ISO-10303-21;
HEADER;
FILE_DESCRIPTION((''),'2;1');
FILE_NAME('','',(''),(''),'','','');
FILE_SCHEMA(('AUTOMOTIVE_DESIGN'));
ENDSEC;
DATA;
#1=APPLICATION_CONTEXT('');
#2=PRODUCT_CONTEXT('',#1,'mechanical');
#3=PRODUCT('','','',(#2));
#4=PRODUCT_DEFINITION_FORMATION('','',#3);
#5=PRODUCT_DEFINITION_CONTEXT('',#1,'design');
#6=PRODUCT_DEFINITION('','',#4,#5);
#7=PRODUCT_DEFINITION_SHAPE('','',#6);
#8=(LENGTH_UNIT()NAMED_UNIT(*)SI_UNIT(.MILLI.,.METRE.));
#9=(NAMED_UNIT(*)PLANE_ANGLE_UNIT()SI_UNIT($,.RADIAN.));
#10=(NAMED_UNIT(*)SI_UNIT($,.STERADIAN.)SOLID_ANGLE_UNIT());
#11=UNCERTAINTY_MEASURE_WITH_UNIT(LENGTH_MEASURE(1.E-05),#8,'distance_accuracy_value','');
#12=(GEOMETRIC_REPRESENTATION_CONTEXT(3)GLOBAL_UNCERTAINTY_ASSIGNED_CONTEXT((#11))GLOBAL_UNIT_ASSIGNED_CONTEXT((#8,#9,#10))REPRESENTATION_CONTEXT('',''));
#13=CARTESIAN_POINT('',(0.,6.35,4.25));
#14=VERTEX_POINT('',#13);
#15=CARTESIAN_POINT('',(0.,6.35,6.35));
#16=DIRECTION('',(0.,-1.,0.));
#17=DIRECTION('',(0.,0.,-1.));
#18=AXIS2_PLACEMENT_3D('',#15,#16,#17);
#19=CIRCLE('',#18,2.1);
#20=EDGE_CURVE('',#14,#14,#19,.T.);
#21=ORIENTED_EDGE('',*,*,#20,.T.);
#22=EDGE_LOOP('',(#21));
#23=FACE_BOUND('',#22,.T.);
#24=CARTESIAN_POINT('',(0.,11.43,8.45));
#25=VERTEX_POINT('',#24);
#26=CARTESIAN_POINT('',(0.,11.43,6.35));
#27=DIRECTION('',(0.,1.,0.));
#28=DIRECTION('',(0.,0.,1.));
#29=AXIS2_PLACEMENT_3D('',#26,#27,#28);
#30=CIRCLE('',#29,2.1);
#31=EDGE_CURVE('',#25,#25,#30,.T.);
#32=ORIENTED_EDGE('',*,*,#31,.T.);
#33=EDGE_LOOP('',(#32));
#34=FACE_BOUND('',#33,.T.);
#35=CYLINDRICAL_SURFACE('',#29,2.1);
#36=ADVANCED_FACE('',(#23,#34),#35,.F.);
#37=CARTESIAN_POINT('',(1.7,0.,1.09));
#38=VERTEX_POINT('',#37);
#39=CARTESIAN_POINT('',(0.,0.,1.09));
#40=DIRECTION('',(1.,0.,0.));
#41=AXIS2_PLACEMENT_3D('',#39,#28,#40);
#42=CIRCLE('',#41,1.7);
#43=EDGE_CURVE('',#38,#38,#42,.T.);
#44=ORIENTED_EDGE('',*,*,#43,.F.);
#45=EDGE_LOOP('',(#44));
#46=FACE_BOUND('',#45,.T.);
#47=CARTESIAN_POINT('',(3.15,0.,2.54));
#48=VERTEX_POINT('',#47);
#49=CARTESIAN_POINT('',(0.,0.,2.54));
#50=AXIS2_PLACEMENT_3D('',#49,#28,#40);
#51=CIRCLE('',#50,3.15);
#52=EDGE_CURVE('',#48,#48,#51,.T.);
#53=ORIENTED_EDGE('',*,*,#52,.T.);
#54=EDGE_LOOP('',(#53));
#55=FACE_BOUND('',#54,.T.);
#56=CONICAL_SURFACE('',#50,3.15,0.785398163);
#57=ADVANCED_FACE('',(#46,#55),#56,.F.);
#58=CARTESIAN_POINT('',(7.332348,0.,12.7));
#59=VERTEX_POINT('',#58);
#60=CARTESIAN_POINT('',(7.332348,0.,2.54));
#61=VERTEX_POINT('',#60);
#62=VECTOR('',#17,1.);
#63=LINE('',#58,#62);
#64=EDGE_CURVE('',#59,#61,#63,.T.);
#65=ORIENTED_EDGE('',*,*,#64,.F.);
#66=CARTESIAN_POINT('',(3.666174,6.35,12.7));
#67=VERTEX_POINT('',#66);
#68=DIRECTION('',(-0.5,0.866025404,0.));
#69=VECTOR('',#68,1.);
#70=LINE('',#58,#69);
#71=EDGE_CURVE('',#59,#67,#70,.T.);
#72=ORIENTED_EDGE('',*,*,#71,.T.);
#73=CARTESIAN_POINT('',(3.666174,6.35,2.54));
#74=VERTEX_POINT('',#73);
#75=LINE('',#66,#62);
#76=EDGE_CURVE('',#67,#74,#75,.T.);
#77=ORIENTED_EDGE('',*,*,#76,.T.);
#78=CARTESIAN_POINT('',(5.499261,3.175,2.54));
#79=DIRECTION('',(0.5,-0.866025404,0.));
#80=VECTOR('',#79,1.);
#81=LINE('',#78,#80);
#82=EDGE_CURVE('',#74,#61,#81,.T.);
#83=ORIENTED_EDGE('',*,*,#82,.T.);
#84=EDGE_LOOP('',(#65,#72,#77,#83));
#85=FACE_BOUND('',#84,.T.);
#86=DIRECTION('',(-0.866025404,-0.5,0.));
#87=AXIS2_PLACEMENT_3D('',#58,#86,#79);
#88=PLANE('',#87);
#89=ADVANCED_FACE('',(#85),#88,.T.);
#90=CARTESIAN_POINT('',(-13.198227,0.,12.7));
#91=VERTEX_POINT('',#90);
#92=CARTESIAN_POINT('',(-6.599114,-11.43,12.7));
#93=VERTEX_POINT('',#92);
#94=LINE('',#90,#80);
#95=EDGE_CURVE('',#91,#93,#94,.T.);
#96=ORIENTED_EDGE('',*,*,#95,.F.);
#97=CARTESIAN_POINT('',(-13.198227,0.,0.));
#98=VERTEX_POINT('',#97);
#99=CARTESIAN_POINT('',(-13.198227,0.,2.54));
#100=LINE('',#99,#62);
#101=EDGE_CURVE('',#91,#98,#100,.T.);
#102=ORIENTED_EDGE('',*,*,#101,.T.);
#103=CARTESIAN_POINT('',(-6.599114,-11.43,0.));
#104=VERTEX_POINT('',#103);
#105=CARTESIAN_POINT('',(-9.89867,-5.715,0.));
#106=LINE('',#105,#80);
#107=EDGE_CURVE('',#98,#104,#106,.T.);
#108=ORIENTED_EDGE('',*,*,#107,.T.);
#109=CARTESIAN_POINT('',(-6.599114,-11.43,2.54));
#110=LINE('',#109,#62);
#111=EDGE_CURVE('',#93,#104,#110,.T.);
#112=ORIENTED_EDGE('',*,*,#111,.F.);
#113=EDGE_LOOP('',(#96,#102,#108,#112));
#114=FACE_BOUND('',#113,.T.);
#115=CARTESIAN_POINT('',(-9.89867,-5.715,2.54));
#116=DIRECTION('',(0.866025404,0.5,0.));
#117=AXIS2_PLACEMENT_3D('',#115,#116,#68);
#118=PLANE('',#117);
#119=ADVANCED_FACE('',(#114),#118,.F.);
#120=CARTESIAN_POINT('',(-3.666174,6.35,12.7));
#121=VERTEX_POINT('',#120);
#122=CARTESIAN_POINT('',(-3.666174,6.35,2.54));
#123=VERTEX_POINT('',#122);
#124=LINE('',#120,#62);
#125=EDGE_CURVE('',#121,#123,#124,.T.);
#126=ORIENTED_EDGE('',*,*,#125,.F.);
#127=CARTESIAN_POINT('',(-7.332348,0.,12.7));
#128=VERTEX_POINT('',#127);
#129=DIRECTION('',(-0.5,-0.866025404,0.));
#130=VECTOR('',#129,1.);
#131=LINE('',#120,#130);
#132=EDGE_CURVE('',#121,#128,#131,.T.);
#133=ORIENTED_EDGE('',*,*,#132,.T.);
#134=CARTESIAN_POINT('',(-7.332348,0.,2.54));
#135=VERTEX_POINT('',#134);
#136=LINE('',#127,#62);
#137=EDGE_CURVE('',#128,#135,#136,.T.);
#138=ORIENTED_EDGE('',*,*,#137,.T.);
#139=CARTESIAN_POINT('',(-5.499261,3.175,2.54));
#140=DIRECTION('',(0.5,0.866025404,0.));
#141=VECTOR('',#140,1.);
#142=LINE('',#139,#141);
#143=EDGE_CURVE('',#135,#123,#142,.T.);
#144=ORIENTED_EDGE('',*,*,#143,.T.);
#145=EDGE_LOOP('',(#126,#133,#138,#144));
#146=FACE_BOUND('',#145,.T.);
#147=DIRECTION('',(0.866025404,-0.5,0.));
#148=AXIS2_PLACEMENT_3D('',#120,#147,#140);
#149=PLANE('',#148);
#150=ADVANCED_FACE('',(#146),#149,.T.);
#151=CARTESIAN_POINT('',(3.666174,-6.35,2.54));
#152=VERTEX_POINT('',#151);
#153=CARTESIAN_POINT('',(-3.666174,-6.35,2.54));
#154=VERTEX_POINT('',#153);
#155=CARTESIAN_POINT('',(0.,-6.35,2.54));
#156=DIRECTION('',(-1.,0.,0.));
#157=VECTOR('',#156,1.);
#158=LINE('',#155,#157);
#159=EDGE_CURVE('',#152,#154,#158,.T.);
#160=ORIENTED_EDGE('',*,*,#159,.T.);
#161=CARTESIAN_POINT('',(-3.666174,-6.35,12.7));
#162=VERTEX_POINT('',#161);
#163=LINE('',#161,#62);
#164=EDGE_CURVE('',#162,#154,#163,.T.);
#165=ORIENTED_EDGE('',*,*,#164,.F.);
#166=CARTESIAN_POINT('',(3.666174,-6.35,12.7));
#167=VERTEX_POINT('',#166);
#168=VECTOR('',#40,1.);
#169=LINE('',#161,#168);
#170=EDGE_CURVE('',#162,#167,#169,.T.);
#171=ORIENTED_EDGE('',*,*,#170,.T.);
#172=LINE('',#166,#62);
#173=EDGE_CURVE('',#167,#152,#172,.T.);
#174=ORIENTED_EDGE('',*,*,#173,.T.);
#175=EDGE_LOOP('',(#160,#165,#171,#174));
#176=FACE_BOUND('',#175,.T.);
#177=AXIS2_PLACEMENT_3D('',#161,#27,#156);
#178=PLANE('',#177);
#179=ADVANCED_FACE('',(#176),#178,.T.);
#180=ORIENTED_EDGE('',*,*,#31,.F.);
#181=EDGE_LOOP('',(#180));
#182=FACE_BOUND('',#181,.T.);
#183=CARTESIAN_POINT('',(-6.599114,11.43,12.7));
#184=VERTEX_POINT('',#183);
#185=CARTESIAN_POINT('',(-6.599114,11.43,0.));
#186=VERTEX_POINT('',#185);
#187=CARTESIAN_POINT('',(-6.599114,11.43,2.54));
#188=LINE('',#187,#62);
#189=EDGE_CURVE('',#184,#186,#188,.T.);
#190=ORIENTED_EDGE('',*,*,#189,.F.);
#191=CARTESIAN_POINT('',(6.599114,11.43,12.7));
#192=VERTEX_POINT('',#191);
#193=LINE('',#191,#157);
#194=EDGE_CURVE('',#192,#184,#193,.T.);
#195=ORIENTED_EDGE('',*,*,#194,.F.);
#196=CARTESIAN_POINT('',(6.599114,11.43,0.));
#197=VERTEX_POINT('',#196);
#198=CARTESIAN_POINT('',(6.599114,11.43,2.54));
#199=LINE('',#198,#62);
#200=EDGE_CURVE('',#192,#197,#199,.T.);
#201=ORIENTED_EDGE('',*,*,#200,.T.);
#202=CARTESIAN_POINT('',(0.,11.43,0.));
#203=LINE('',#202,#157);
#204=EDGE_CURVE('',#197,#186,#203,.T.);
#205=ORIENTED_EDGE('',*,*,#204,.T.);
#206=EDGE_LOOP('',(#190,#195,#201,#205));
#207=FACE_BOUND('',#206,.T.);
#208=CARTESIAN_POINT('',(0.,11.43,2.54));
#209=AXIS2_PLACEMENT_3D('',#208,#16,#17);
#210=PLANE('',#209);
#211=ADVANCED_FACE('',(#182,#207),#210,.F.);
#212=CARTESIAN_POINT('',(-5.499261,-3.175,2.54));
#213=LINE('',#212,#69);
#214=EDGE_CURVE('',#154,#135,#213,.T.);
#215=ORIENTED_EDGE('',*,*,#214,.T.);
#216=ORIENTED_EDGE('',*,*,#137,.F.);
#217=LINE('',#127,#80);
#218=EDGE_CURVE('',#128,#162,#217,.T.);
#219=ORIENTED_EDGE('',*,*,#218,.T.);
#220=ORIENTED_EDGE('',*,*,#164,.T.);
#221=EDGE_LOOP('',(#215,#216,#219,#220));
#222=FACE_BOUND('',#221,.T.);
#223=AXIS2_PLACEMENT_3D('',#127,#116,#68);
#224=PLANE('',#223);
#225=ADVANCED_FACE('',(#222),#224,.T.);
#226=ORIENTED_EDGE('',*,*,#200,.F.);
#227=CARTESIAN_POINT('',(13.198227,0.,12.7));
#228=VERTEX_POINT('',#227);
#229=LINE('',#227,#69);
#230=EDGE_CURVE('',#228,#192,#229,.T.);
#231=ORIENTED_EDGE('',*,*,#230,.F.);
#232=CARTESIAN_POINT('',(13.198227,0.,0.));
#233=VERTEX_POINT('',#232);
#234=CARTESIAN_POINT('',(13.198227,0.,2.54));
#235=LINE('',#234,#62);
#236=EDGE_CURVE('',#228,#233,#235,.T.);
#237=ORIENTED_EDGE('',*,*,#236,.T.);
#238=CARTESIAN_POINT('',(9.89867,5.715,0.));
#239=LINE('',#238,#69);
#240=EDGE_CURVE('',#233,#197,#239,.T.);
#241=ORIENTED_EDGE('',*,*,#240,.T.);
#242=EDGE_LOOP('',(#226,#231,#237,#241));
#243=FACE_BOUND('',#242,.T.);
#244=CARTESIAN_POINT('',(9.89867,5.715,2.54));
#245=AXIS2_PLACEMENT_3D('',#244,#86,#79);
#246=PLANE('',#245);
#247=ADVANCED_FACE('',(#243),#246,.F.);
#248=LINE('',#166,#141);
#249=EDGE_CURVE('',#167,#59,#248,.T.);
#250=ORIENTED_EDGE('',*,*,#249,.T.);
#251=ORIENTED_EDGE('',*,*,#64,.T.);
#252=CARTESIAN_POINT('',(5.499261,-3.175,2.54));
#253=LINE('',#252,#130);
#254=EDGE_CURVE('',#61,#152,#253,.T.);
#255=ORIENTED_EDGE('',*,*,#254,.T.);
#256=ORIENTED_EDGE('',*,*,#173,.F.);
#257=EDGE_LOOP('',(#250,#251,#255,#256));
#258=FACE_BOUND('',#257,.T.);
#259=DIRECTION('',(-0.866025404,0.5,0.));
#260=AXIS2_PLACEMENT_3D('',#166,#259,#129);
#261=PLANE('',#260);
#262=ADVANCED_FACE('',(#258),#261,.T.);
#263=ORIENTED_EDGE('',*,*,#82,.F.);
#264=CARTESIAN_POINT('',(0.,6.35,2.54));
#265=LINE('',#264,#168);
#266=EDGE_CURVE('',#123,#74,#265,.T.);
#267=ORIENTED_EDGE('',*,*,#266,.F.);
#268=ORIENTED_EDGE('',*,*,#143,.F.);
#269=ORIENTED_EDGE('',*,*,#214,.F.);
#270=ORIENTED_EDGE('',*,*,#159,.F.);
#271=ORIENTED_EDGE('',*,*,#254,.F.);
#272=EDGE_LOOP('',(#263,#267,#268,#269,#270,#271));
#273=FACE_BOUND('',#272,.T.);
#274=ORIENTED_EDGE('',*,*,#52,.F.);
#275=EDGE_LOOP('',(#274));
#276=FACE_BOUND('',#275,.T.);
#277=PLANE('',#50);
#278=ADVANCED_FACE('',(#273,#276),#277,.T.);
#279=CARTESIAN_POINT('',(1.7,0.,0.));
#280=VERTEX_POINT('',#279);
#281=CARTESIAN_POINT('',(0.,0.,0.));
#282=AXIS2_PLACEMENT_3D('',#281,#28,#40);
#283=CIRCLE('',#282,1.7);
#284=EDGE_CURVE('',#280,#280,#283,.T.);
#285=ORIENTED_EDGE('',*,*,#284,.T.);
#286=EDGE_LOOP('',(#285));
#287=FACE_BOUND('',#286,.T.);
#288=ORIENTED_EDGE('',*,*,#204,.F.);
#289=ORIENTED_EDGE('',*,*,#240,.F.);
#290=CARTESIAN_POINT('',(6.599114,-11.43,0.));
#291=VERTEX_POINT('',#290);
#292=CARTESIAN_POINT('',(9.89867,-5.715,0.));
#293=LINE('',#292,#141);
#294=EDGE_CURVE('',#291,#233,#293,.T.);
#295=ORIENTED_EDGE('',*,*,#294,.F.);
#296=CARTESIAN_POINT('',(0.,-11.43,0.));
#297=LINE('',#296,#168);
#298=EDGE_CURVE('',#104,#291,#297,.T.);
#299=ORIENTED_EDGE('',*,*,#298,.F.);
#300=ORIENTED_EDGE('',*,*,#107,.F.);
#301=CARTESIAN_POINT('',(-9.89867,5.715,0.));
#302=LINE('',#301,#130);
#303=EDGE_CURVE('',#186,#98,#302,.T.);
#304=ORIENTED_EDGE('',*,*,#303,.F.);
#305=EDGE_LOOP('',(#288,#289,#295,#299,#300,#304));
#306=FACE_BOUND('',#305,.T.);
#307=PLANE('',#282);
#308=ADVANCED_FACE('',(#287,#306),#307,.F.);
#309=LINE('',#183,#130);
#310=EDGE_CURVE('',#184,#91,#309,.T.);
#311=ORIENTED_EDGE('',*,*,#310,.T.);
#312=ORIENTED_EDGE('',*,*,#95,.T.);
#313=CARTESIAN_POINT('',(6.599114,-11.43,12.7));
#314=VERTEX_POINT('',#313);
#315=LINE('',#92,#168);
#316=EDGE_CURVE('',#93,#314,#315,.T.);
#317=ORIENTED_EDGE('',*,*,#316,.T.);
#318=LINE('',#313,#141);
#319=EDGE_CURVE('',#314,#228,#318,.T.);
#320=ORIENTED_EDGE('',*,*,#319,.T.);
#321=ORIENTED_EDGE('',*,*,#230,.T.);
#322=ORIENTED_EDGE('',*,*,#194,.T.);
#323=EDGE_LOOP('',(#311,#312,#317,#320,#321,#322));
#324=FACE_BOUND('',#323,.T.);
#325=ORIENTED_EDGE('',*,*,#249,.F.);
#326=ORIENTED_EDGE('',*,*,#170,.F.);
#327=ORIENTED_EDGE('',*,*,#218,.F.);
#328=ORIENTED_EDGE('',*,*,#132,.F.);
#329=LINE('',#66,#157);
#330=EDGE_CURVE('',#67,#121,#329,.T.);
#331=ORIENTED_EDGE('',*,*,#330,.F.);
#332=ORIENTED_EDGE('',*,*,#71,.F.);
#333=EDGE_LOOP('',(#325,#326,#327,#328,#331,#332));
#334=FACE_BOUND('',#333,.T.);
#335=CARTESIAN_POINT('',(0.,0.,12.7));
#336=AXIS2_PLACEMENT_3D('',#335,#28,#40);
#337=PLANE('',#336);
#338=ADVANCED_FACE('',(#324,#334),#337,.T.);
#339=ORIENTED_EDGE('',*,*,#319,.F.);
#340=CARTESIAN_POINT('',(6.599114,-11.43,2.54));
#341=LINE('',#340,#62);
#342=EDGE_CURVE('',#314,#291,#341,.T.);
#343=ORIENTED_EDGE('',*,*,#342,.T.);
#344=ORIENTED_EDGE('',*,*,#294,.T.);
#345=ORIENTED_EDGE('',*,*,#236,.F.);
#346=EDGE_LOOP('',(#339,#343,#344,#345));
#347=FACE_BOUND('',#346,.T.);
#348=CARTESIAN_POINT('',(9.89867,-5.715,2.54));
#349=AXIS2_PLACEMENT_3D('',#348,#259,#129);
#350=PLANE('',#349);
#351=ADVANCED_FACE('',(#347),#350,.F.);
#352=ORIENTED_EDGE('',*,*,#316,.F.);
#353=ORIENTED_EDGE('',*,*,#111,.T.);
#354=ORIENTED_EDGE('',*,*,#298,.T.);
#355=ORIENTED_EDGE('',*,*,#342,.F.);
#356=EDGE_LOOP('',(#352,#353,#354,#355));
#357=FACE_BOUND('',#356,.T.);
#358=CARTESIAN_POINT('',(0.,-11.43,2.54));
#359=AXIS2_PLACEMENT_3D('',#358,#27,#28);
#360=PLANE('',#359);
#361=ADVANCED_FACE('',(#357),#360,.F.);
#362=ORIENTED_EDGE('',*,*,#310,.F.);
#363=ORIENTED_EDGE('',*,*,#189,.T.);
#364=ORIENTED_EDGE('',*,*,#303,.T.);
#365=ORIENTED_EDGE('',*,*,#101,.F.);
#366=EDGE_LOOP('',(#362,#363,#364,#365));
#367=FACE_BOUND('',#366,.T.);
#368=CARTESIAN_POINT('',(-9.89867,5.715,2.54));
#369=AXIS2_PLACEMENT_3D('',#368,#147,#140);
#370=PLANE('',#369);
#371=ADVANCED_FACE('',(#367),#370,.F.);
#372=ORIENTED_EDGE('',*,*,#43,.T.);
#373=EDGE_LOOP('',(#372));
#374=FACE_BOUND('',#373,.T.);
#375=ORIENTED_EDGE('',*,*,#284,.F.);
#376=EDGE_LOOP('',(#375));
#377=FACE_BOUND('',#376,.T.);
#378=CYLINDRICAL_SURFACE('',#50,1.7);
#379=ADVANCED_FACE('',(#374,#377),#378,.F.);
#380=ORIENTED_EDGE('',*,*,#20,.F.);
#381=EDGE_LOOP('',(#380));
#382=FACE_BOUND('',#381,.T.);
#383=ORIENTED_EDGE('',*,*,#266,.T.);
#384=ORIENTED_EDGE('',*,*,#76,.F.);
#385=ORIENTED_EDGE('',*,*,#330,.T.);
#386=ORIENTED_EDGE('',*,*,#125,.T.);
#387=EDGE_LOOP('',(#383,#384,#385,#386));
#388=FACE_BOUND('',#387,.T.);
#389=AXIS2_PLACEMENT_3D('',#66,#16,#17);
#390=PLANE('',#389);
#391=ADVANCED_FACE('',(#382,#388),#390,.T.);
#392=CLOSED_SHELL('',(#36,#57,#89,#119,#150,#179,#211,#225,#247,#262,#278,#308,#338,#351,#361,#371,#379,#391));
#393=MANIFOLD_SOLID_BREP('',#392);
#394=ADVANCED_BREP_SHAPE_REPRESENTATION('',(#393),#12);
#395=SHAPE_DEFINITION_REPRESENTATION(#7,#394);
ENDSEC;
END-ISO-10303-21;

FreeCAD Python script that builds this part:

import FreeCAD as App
import Part
import Sketcher
Q = App.Units.Quantity

doc = App.newDocument("Part")
body = doc.addObject("PartDesign::Body", "Body")

# Sketch on XY plane
sketch1 = body.newObject("Sketcher::SketchObject", "Sketch")
sketch1.AttachmentSupport = (doc.getObject("XY_Plane"), [""])
sketch1.MapMode = "FlatFace"
sketch1.addGeometry([
    Part.LineSegment(App.Vector(6.599114, -11.43, 0), App.Vector(13.198227, 0, 0)),  # 0
    Part.LineSegment(App.Vector(13.198227, 0, 0), App.Vector(6.599114, 11.43, 0)),  # 1
    Part.LineSegment(App.Vector(6.599114, 11.43, 0), App.Vector(-6.599114, 11.43, 0)),  # 2
    Part.LineSegment(App.Vector(-6.599114, 11.43, 0), App.Vector(-13.198227, 0, 0)),  # 3
    Part.LineSegment(App.Vector(-13.198227, 0, 0), App.Vector(-6.599114, -11.43, 0)),  # 4
    Part.LineSegment(App.Vector(-6.599114, -11.43, 0), App.Vector(6.599114, -11.43, 0)),  # 5
], False)
sketch1.addConstraint([
    Sketcher.Constraint("Coincident", 0, 2, 1, 1),
    Sketcher.Constraint("Coincident", 1, 2, 2, 1),
    Sketcher.Constraint("Coincident", 2, 2, 3, 1),
    Sketcher.Constraint("Coincident", 3, 2, 4, 1),
    Sketcher.Constraint("Coincident", 4, 2, 5, 1),
    Sketcher.Constraint("Coincident", 5, 2, 0, 1),
    Sketcher.Constraint("Horizontal", 2),
    Sketcher.Constraint("Horizontal", 5),
    Sketcher.Constraint("Symmetric", 0, 2, 3, 2, -1, 1),
    Sketcher.Constraint("Symmetric", 1, 2, 4, 2, -1, 1),
    Sketcher.Constraint("PointOnObject", 0, 2, -1),
    Sketcher.Constraint("Parallel", 0, 3),
    Sketcher.Constraint("Vertical", 2, 2, 4, 2),
    Sketcher.Constraint("Angle", 0, Q("60 deg")),
    Sketcher.Constraint("DistanceY", 4, 2, 2, 2, Q("0.9 in")),
    Sketcher.Constraint("DistanceX", 2, 2, 2, 1, 13.198227),
])
pad1 = body.newObject("PartDesign::Pad", "Pad")
pad1.Profile = sketch1
pad1.Length = Q("0.1 in")

# Sketch on YZ plane
sketch2 = body.newObject("Sketcher::SketchObject", "Sketch001")
sketch2.AttachmentSupport = (doc.getObject("YZ_Plane"), [""])
sketch2.MapMode = "FlatFace"
sketch2.addGeometry([
    Part.LineSegment(App.Vector(0, 0, 0), App.Vector(0, 2.54, 0)),  # 0
    Part.LineSegment(App.Vector(0, 2.54, 0), App.Vector(-3.15, 2.54, 0)),  # 1
    Part.LineSegment(App.Vector(-3.15, 2.54, 0), App.Vector(-1.7, 1.09, 0)),  # 2
    Part.LineSegment(App.Vector(-1.7, 1.09, 0), App.Vector(-1.7, 0, 0)),  # 3
    Part.LineSegment(App.Vector(-1.7, 0, 0), App.Vector(0, 0, 0)),  # 4
], False)
sketch2.addConstraint([
    Sketcher.Constraint("Coincident", 0, 2, 1, 1),
    Sketcher.Constraint("Coincident", 1, 2, 2, 1),
    Sketcher.Constraint("Coincident", 2, 2, 3, 1),
    Sketcher.Constraint("Coincident", 3, 2, 4, 1),
    Sketcher.Constraint("Coincident", 4, 2, 0, 1),
    Sketcher.Constraint("Vertical", 0),
    Sketcher.Constraint("Horizontal", 1),
    Sketcher.Constraint("Vertical", 3),
    Sketcher.Constraint("Horizontal", 4),
    Sketcher.Constraint("Coincident", 4, 2, -1, 1),
    Sketcher.Constraint("DistanceY", 0, 1, 0, 2, Q("0.1 in")),
    Sketcher.Constraint("Angle", 2, Q("-45 deg")),
    Sketcher.Constraint("DistanceX", 1, 2, 1, 1, 3.15),
    Sketcher.Constraint("DistanceX", 4, 1, 4, 2, 1.7),
])
groove = body.newObject("PartDesign::Groove", "Groove")
groove.Profile = sketch2
groove.ReferenceAxis = (sketch2, ["V_Axis"])
groove.Angle = 360
doc.recompute()

datumline = body.newObject("PartDesign::Line", "DatumLine")
datumline.Placement = App.Placement(App.Vector(0, 0, 0), App.Rotation(App.Vector(0, 0, 1), App.Vector(-0.927406881, 0.374054109, 0)))
linearpattern = body.newObject("PartDesign::LinearPattern", "LinearPattern")
linearpattern.Originals = [groove]
linearpattern.Direction = (datumline, [""])
linearpattern.Mode = "offset"
linearpattern.Offset = 18.548357
linearpattern.Occurrences = 2
body.Tip = linearpattern

# Sketch on XY plane
sketch3 = body.newObject("Sketcher::SketchObject", "Sketch002")
sketch3.AttachmentSupport = (doc.getObject("XY_Plane"), [""])
sketch3.MapMode = "FlatFace"
sketch3.addGeometry([
    Part.LineSegment(App.Vector(6.599114, 11.43, 0), App.Vector(-6.599114, 11.43, 0)),  # 0
    Part.LineSegment(App.Vector(-6.599114, 11.43, 0), App.Vector(-13.198227, 0, 0)),  # 1
    Part.LineSegment(App.Vector(-13.198227, 0, 0), App.Vector(-6.599114, -11.43, 0)),  # 2
    Part.LineSegment(App.Vector(-6.599114, -11.43, 0), App.Vector(6.599114, -11.43, 0)),  # 3
    Part.LineSegment(App.Vector(6.599114, -11.43, 0), App.Vector(13.198227, 0, 0)),  # 4
    Part.LineSegment(App.Vector(13.198227, 0, 0), App.Vector(6.599114, 11.43, 0)),  # 5
    Part.LineSegment(App.Vector(7.332348, 0, 0), App.Vector(3.666174, -6.35, 0)),  # 6
    Part.LineSegment(App.Vector(3.666174, -6.35, 0), App.Vector(-3.666174, -6.35, 0)),  # 7
    Part.LineSegment(App.Vector(-3.666174, -6.35, 0), App.Vector(-7.332348, 0, 0)),  # 8
    Part.LineSegment(App.Vector(-7.332348, 0, 0), App.Vector(-3.666174, 6.35, 0)),  # 9
    Part.LineSegment(App.Vector(-3.666174, 6.35, 0), App.Vector(3.666174, 6.35, 0)),  # 10
    Part.LineSegment(App.Vector(3.666174, 6.35, 0), App.Vector(7.332348, 0, 0)),  # 11
], False)
sketch3.addConstraint([
    Sketcher.Constraint("Coincident", 0, 2, 1, 1),
    Sketcher.Constraint("Coincident", 1, 2, 2, 1),
    Sketcher.Constraint("Coincident", 2, 2, 3, 1),
    Sketcher.Constraint("Coincident", 3, 2, 4, 1),
    Sketcher.Constraint("Coincident", 4, 2, 5, 1),
    Sketcher.Constraint("Coincident", 5, 2, 0, 1),
    Sketcher.Constraint("Coincident", 6, 2, 7, 1),
    Sketcher.Constraint("Coincident", 7, 2, 8, 1),
    Sketcher.Constraint("Coincident", 8, 2, 9, 1),
    Sketcher.Constraint("Coincident", 9, 2, 10, 1),
    Sketcher.Constraint("Coincident", 10, 2, 11, 1),
    Sketcher.Constraint("Coincident", 11, 2, 6, 1),
    Sketcher.Constraint("Horizontal", 0),
    Sketcher.Constraint("Horizontal", 3),
    Sketcher.Constraint("Horizontal", 7),
    Sketcher.Constraint("Horizontal", 10),
    Sketcher.Constraint("Symmetric", 0, 2, 3, 2, -1, 1),
    Sketcher.Constraint("Symmetric", 1, 2, 4, 2, -1, 1),
    Sketcher.Constraint("Symmetric", 6, 2, 9, 2, -1, 1),
    Sketcher.Constraint("Symmetric", 8, 2, 11, 2, -1, 1),
    Sketcher.Constraint("PointOnObject", 1, 2, -1),
    Sketcher.Constraint("PointOnObject", 8, 2, -1),
    Sketcher.Constraint("Parallel", 2, 5),
    Sketcher.Constraint("Parallel", 4, 6),
    Sketcher.Constraint("Parallel", 5, 8),
    Sketcher.Constraint("Parallel", 8, 11),
    Sketcher.Constraint("Vertical", 0, 2, 2, 2),
    Sketcher.Constraint("Angle", 1, Q("-120 deg")),
    Sketcher.Constraint("DistanceY", 2, 2, 0, 2, Q("0.9 in")),
    Sketcher.Constraint("DistanceY", 3, 2, 6, 2, Q("0.2 in")),
    Sketcher.Constraint("DistanceX", 7, 2, 7, 1, 7.332348),
    Sketcher.Constraint("DistanceX", 1, 2, 6, 2, 16.864401),
])
pad2 = body.newObject("PartDesign::Pad", "Pad001")
pad2.Profile = sketch3
pad2.Length = Q("0.5 in")

# Sketch on XZ plane
sketch4 = body.newObject("Sketcher::SketchObject", "Sketch003")
sketch4.AttachmentSupport = (doc.getObject("XZ_Plane"), [""])
sketch4.MapMode = "FlatFace"
sketch4.AttachmentOffset = App.Placement(App.Vector(0, 0, -0.45 * 25.4), App.Rotation())
sketch4.addGeometry(Part.Circle(App.Vector(0, 6.35, 0), App.Vector(0, 0, 1), 2.1), False)
sketch4.addConstraint([
    Sketcher.Constraint("PointOnObject", 0, 3, -2),
    Sketcher.Constraint("Diameter", 0, 4.2),
    Sketcher.Constraint("DistanceY", -1, 1, 0, 3, Q("0.25 in")),
])
doc.recompute()
hole = body.newObject("PartDesign::Hole", "Hole")
hole.Profile = sketch4
hole.ThreadType = "None"
hole.Diameter = 4.2
hole.DepthType = "Dimension"
hole.Depth = Q("0.2 in")
hole.DrillPoint = "Flat"
hole.Reversed = True

doc.recompute()
